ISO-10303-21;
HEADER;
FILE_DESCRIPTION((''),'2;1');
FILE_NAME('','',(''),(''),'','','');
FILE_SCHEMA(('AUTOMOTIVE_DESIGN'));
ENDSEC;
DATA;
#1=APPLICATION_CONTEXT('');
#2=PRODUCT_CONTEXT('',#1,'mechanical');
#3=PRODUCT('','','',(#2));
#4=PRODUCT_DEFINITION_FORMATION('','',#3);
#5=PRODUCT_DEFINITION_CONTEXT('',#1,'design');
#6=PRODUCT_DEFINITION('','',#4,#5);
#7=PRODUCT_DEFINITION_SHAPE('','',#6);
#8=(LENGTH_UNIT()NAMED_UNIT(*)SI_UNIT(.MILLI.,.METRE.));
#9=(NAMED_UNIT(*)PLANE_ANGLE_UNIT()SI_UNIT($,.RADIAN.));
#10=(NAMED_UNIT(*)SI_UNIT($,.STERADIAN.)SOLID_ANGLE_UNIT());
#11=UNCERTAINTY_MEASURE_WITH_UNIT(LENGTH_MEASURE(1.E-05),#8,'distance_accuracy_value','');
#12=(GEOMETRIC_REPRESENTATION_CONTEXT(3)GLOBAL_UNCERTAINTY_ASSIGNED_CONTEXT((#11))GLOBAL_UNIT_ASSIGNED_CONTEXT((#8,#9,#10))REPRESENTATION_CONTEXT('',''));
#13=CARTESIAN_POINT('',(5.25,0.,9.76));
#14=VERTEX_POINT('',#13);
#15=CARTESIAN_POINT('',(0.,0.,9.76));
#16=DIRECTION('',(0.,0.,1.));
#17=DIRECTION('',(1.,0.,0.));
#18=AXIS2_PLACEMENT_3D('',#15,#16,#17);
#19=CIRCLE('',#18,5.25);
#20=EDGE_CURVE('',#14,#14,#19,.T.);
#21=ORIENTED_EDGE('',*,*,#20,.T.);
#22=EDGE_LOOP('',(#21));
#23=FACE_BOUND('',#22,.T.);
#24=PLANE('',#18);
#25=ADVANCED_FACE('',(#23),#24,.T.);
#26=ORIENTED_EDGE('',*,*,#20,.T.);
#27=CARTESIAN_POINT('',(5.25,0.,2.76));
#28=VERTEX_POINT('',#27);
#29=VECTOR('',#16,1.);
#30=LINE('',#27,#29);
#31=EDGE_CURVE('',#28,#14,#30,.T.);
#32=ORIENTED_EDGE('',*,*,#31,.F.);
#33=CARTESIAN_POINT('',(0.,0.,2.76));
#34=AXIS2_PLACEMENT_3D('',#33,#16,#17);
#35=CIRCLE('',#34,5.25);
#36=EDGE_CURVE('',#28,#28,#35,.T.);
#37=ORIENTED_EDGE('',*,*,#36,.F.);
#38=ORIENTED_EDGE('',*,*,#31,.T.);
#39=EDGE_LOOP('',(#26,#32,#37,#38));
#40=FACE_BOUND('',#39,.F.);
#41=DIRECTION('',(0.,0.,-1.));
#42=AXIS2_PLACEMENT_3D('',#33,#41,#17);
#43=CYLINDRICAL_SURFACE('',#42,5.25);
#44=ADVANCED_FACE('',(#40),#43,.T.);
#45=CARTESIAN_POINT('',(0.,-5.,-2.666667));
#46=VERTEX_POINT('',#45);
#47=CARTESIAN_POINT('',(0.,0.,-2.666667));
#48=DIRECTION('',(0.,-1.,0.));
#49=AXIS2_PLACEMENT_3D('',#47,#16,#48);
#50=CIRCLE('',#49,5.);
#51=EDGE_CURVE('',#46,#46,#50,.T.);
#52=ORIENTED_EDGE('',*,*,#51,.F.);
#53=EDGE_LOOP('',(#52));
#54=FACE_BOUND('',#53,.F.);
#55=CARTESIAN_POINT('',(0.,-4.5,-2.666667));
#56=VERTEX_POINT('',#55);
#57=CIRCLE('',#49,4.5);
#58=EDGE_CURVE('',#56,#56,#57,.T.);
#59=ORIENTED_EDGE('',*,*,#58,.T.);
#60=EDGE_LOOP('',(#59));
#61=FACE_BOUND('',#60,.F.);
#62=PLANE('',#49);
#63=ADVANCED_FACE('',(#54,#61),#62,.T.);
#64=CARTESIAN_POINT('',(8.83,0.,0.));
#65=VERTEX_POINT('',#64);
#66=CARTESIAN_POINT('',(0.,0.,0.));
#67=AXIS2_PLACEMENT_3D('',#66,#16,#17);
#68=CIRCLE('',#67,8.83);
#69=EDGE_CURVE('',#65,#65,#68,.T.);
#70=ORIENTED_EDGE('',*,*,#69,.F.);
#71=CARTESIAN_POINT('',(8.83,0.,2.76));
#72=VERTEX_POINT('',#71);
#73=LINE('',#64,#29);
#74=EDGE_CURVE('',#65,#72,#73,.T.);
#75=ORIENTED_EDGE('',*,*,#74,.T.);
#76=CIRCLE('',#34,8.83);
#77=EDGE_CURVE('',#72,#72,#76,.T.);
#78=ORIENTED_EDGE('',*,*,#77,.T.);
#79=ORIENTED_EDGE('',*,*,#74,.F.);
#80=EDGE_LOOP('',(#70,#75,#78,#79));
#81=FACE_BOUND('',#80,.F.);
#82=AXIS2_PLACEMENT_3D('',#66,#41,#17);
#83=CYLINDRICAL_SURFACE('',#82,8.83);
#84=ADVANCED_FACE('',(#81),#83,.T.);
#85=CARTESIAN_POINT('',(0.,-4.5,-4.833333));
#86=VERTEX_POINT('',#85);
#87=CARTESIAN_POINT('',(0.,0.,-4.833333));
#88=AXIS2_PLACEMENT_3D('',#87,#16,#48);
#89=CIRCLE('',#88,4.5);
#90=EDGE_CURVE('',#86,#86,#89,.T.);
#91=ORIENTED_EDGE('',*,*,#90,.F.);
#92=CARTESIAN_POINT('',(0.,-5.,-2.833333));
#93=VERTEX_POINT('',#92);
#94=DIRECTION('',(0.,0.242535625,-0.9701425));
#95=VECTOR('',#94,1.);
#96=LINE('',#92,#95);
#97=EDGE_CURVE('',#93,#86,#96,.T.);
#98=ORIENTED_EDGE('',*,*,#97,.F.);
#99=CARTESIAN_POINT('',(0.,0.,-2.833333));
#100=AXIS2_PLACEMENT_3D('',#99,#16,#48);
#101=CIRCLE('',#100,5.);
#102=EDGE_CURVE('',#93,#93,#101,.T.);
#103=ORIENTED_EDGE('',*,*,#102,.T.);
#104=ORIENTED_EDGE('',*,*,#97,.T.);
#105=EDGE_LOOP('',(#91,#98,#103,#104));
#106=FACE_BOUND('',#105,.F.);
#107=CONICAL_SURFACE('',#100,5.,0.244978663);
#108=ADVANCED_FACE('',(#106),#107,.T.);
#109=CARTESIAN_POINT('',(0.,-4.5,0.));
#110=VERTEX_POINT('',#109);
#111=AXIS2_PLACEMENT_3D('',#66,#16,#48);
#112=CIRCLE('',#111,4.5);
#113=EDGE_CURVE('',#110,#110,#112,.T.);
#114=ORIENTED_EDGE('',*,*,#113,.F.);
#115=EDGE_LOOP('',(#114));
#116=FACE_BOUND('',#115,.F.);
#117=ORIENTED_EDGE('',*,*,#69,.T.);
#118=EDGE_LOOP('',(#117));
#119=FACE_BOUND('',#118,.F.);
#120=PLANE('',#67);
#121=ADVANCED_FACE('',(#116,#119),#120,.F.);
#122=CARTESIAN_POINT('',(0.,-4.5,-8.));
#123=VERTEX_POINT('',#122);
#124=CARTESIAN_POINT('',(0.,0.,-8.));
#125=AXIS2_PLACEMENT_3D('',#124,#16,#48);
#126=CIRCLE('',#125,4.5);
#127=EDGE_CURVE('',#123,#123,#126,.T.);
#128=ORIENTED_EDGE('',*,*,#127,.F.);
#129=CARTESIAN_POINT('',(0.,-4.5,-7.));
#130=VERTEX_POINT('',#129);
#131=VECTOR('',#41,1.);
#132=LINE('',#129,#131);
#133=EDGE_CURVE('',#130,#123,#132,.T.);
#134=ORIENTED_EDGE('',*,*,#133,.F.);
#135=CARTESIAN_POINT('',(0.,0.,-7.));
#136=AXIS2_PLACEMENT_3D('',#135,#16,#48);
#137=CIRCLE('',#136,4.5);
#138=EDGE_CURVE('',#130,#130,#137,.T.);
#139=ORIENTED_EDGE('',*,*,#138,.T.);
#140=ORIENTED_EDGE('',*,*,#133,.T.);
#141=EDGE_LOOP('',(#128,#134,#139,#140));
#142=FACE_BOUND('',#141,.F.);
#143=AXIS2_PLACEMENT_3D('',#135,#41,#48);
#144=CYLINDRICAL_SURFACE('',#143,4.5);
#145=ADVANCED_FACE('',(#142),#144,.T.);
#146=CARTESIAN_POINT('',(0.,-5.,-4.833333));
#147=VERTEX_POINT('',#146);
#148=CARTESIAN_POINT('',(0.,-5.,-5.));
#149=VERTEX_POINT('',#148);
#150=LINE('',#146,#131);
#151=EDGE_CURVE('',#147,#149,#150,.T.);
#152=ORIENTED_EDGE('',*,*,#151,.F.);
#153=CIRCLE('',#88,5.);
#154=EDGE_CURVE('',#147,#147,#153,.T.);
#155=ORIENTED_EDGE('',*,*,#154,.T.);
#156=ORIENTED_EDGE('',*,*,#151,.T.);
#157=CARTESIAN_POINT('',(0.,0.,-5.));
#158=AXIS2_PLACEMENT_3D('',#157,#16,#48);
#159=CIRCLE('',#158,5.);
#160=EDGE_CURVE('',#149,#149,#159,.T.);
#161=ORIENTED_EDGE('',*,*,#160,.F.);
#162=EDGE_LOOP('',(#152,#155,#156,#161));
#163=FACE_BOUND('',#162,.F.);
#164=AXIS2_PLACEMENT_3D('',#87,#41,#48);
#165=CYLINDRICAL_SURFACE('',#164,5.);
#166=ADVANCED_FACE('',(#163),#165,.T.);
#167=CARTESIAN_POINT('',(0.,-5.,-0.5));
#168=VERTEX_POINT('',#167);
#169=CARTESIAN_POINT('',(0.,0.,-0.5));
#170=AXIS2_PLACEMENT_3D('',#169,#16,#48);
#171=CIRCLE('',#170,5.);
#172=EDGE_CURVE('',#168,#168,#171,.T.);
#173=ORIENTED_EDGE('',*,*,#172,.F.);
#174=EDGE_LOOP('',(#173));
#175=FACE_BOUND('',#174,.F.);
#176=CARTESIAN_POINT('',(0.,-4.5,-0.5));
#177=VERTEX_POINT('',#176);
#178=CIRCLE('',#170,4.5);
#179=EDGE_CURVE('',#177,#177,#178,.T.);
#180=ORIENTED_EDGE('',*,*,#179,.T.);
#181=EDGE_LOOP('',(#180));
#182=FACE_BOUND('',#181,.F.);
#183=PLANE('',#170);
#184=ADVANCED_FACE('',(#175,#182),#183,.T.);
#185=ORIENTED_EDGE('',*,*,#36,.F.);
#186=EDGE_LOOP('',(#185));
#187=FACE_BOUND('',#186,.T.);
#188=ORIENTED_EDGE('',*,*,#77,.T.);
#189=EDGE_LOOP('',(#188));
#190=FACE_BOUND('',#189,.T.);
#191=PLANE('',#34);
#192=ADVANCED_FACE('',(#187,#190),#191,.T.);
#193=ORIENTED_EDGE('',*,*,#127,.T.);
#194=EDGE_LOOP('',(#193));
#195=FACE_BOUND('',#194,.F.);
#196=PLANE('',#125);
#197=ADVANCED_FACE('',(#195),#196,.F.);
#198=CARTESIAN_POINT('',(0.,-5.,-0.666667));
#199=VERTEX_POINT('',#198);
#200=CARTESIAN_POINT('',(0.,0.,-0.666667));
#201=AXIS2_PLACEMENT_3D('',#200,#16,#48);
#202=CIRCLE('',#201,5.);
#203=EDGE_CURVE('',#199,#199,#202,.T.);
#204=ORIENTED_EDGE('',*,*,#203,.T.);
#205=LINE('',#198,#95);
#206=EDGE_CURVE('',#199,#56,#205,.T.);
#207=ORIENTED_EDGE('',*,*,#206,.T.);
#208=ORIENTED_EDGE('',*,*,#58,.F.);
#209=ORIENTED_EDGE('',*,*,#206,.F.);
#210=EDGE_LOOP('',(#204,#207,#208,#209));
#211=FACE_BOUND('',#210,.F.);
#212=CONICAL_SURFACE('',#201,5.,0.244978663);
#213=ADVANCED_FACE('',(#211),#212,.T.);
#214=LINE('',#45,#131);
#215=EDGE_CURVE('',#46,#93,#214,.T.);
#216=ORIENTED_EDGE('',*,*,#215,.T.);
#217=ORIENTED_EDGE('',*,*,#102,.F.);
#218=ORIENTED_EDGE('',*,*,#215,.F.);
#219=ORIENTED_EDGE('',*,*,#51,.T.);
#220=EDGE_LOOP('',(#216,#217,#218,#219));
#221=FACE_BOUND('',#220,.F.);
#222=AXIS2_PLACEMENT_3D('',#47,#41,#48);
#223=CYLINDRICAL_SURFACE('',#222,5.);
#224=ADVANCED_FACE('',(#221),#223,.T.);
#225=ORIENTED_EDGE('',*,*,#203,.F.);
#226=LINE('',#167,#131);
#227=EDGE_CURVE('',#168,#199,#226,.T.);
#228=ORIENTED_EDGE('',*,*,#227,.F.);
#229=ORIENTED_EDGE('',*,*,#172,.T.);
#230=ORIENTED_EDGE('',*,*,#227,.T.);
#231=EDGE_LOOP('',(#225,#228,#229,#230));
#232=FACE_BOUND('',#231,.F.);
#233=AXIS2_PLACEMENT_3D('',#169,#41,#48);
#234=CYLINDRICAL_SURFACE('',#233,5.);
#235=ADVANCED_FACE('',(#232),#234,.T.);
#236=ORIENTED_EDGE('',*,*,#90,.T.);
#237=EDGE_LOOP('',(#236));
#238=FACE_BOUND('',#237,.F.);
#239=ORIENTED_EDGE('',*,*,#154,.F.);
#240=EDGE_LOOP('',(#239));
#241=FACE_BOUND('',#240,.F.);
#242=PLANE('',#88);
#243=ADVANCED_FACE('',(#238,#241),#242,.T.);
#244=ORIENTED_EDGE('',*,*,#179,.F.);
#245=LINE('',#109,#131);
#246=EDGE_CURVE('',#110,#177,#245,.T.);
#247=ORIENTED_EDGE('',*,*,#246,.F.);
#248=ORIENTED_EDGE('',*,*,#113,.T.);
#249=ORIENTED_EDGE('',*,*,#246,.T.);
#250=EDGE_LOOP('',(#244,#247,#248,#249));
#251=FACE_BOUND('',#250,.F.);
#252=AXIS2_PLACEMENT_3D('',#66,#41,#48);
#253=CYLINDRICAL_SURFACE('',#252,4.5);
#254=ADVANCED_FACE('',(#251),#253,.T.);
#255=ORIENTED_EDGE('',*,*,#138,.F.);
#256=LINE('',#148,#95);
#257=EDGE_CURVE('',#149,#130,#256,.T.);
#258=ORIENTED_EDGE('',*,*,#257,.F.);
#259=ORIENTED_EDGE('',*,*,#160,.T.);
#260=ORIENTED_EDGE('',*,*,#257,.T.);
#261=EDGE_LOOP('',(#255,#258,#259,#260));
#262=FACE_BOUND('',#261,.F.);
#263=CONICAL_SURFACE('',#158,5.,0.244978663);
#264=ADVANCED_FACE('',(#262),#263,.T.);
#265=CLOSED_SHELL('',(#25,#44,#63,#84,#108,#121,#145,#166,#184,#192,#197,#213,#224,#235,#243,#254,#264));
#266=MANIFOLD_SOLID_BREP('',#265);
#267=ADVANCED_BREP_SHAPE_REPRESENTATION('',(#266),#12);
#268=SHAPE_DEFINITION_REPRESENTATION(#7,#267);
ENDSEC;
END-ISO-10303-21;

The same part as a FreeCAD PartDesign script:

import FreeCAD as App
import Part
import Sketcher
from FreeCAD import Vector
Q = App.Units.Quantity

doc = App.newDocument("Part")
params = doc.addObject("Spreadsheet::Sheet", "Params")
for row, (alias, value) in enumerate([
    ("sketch1_diameter", "17.66 mm"),
    ("pad1_length", "2.76 mm"),
    ("sketch2_height", "8 mm"),
    ("sketch2_height2", "1 mm"),
    ("sketch2_width", "4.5 mm"),
    ("sketch2_width2", "0.5 mm"),
    ("revolution_angle", "360 deg"),
    ("sketch3_diameter", "10.5 mm"),
    ("pad2_length", "7 mm"),
], start=1):
    params.set(f"A{row}", alias)
    params.set(f"B{row}", "=" + value)
    params.setAlias(f"B{row}", alias)

body = doc.addObject("PartDesign::Body", "Body")

# Sketch on XY plane
sketch1 = body.newObject("Sketcher::SketchObject", "Sketch")
sketch1.AttachmentSupport = (doc.getObject("XY_Plane"), [""])
sketch1.MapMode = "FlatFace"
sketch1.addGeometry(Part.Circle(Vector(0, 0, 0), Vector(0, 0, 1), 9), False)
sketch1.addConstraint(Sketcher.Constraint("Coincident", 0, 3, -1, 1))
sketch1.addConstraint(Sketcher.Constraint("Diameter", 0, Q("17.66 mm")))
sketch1.setExpression("Constraints[1]", "Params.sketch1_diameter")
pad1 = body.newObject("PartDesign::Pad", "Pad")
pad1.Profile = sketch1
pad1.setExpression("Length", "Params.pad1_length")

# Sketch on YZ plane
sketch2 = body.newObject("Sketcher::SketchObject", "Sketch001")
sketch2.AttachmentSupport = (doc.getObject("YZ_Plane"), [""])
sketch2.MapMode = "FlatFace"
sketch2.addGeometry(Part.LineSegment(Vector(0, -8, 0), Vector(0, 0, 0)), False)
sketch2.addGeometry(Part.LineSegment(Vector(0, 0, 0), Vector(-4.5, 0, 0)), False)
sketch2.addGeometry(Part.LineSegment(Vector(-4.5, 0, 0), Vector(-4.5, -0.5, 0)), False)
sketch2.addGeometry(Part.LineSegment(Vector(-4.5, -0.5, 0), Vector(-5, -0.5, 0)), False)
sketch2.addGeometry(Part.LineSegment(Vector(-5, -0.5, 0), Vector(-5, -0.67, 0)), False)
sketch2.addGeometry(Part.LineSegment(Vector(-5, -0.67, 0), Vector(-4.5, -2.67, 0)), False)
sketch2.addGeometry(Part.LineSegment(Vector(-4.5, -2.67, 0), Vector(-5, -2.67, 0)), False)
sketch2.addGeometry(Part.LineSegment(Vector(-5, -2.67, 0), Vector(-5, -2.83, 0)), False)
sketch2.addGeometry(Part.LineSegment(Vector(-5, -2.83, 0), Vector(-4.5, -4.83, 0)), False)
sketch2.addGeometry(Part.LineSegment(Vector(-4.5, -4.83, 0), Vector(-5, -4.83, 0)), False)
sketch2.addGeometry(Part.LineSegment(Vector(-5, -4.83, 0), Vector(-5, -5, 0)), False)
sketch2.addGeometry(Part.LineSegment(Vector(-5, -5, 0), Vector(-4.5, -7, 0)), False)
sketch2.addGeometry(Part.LineSegment(Vector(-4.5, -7, 0), Vector(-4.5, -8, 0)), False)
sketch2.addGeometry(Part.LineSegment(Vector(-4.5, -8, 0), Vector(0, -8, 0)), False)
sketch2.addConstraint(Sketcher.Constraint("Coincident", 0, 2, 1, 1))
sketch2.addConstraint(Sketcher.Constraint("Coincident", 1, 2, 2, 1))
sketch2.addConstraint(Sketcher.Constraint("Coincident", 2, 2, 3, 1))
sketch2.addConstraint(Sketcher.Constraint("Coincident", 3, 2, 4, 1))
sketch2.addConstraint(Sketcher.Constraint("Coincident", 4, 2, 5, 1))
sketch2.addConstraint(Sketcher.Constraint("Coincident", 5, 2, 6, 1))
sketch2.addConstraint(Sketcher.Constraint("Coincident", 6, 2, 7, 1))
sketch2.addConstraint(Sketcher.Constraint("Coincident", 7, 2, 8, 1))
sketch2.addConstraint(Sketcher.Constraint("Coincident", 8, 2, 9, 1))
sketch2.addConstraint(Sketcher.Constraint("Coincident", 9, 2, 10, 1))
sketch2.addConstraint(Sketcher.Constraint("Coincident", 10, 2, 11, 1))
sketch2.addConstraint(Sketcher.Constraint("Coincident", 11, 2, 12, 1))
sketch2.addConstraint(Sketcher.Constraint("Coincident", 12, 2, 13, 1))
sketch2.addConstraint(Sketcher.Constraint("Coincident", 13, 2, 0, 1))
sketch2.addConstraint(Sketcher.Constraint("Vertical", 0))
sketch2.addConstraint(Sketcher.Constraint("Horizontal", 1))
sketch2.addConstraint(Sketcher.Constraint("Vertical", 2))
sketch2.addConstraint(Sketcher.Constraint("Horizontal", 3))
sketch2.addConstraint(Sketcher.Constraint("Vertical", 4))
sketch2.addConstraint(Sketcher.Constraint("Horizontal", 6))
sketch2.addConstraint(Sketcher.Constraint("Vertical", 7))
sketch2.addConstraint(Sketcher.Constraint("Horizontal", 9))
sketch2.addConstraint(Sketcher.Constraint("Vertical", 10))
sketch2.addConstraint(Sketcher.Constraint("Vertical", 12))
sketch2.addConstraint(Sketcher.Constraint("Horizontal", 13))
sketch2.addConstraint(Sketcher.Constraint("Coincident", 0, 2, -1, 1))
sketch2.addConstraint(Sketcher.Constraint("Parallel", 5, 8))
sketch2.addConstraint(Sketcher.Constraint("Parallel", 8, 11))
sketch2.addConstraint(Sketcher.Constraint("Vertical", 2, 2, 5, 2))
sketch2.addConstraint(Sketcher.Constraint("Vertical", 4, 2, 6, 2))
sketch2.addConstraint(Sketcher.Constraint("Vertical", 5, 2, 8, 2))
sketch2.addConstraint(Sketcher.Constraint("Vertical", 7, 2, 9, 2))
sketch2.addConstraint(Sketcher.Constraint("Vertical", 8, 2, 11, 2))
sketch2.addConstraint(Sketcher.Constraint("Equal", 9, 2))
sketch2.addConstraint(Sketcher.Constraint("Equal", 4, 7))
sketch2.addConstraint(Sketcher.Constraint("Equal", 7, 10))
sketch2.addConstraint(Sketcher.Constraint("DistanceY", 0, 1, 0, 2, Q("8 mm")))
sketch2.addConstraint(Sketcher.Constraint("DistanceY", 12, 2, 12, 1, Q("1 mm")))
sketch2.addConstraint(Sketcher.Constraint("DistanceX", 1, 2, 1, 1, Q("4.5 mm")))
sketch2.addConstraint(Sketcher.Constraint("DistanceX", 3, 2, 3, 1, Q("0.5 mm")))
sketch2.addConstraint(Sketcher.Constraint("DistanceY", 10, 2, -1, 1, Q("5 mm")))
sketch2.setExpression("Constraints[36]", "Params.sketch2_height")
sketch2.setExpression("Constraints[37]", "Params.sketch2_height2")
sketch2.setExpression("Constraints[38]", "Params.sketch2_width")
sketch2.setExpression("Constraints[39]", "Params.sketch2_width2")
revolution = body.newObject("PartDesign::Revolution", "Revolution")
revolution.Profile = sketch2
revolution.ReferenceAxis = (sketch2, ["V_Axis"])
revolution.setExpression("Angle", "Params.revolution_angle")

# Sketch on XY plane
sketch3 = body.newObject("Sketcher::SketchObject", "Sketch002")
sketch3.AttachmentSupport = (doc.getObject("XY_Plane"), [""])
sketch3.MapMode = "FlatFace"
sketch3.AttachmentOffset = App.Placement(Vector(0, 0, 2.76), App.Rotation())
sketch3.addGeometry(Part.Circle(Vector(0, 0, 0), Vector(0, 0, 1), 5), False)
sketch3.addConstraint(Sketcher.Constraint("Coincident", 0, 3, -1, 1))
sketch3.addConstraint(Sketcher.Constraint("Diameter", 0, Q("10.5 mm")))
sketch3.setExpression("Constraints[1]", "Params.sketch3_diameter")
pad2 = body.newObject("PartDesign::Pad", "Pad001")
pad2.Profile = sketch3
pad2.setExpression("Length", "Params.pad2_length")

doc.recompute()
